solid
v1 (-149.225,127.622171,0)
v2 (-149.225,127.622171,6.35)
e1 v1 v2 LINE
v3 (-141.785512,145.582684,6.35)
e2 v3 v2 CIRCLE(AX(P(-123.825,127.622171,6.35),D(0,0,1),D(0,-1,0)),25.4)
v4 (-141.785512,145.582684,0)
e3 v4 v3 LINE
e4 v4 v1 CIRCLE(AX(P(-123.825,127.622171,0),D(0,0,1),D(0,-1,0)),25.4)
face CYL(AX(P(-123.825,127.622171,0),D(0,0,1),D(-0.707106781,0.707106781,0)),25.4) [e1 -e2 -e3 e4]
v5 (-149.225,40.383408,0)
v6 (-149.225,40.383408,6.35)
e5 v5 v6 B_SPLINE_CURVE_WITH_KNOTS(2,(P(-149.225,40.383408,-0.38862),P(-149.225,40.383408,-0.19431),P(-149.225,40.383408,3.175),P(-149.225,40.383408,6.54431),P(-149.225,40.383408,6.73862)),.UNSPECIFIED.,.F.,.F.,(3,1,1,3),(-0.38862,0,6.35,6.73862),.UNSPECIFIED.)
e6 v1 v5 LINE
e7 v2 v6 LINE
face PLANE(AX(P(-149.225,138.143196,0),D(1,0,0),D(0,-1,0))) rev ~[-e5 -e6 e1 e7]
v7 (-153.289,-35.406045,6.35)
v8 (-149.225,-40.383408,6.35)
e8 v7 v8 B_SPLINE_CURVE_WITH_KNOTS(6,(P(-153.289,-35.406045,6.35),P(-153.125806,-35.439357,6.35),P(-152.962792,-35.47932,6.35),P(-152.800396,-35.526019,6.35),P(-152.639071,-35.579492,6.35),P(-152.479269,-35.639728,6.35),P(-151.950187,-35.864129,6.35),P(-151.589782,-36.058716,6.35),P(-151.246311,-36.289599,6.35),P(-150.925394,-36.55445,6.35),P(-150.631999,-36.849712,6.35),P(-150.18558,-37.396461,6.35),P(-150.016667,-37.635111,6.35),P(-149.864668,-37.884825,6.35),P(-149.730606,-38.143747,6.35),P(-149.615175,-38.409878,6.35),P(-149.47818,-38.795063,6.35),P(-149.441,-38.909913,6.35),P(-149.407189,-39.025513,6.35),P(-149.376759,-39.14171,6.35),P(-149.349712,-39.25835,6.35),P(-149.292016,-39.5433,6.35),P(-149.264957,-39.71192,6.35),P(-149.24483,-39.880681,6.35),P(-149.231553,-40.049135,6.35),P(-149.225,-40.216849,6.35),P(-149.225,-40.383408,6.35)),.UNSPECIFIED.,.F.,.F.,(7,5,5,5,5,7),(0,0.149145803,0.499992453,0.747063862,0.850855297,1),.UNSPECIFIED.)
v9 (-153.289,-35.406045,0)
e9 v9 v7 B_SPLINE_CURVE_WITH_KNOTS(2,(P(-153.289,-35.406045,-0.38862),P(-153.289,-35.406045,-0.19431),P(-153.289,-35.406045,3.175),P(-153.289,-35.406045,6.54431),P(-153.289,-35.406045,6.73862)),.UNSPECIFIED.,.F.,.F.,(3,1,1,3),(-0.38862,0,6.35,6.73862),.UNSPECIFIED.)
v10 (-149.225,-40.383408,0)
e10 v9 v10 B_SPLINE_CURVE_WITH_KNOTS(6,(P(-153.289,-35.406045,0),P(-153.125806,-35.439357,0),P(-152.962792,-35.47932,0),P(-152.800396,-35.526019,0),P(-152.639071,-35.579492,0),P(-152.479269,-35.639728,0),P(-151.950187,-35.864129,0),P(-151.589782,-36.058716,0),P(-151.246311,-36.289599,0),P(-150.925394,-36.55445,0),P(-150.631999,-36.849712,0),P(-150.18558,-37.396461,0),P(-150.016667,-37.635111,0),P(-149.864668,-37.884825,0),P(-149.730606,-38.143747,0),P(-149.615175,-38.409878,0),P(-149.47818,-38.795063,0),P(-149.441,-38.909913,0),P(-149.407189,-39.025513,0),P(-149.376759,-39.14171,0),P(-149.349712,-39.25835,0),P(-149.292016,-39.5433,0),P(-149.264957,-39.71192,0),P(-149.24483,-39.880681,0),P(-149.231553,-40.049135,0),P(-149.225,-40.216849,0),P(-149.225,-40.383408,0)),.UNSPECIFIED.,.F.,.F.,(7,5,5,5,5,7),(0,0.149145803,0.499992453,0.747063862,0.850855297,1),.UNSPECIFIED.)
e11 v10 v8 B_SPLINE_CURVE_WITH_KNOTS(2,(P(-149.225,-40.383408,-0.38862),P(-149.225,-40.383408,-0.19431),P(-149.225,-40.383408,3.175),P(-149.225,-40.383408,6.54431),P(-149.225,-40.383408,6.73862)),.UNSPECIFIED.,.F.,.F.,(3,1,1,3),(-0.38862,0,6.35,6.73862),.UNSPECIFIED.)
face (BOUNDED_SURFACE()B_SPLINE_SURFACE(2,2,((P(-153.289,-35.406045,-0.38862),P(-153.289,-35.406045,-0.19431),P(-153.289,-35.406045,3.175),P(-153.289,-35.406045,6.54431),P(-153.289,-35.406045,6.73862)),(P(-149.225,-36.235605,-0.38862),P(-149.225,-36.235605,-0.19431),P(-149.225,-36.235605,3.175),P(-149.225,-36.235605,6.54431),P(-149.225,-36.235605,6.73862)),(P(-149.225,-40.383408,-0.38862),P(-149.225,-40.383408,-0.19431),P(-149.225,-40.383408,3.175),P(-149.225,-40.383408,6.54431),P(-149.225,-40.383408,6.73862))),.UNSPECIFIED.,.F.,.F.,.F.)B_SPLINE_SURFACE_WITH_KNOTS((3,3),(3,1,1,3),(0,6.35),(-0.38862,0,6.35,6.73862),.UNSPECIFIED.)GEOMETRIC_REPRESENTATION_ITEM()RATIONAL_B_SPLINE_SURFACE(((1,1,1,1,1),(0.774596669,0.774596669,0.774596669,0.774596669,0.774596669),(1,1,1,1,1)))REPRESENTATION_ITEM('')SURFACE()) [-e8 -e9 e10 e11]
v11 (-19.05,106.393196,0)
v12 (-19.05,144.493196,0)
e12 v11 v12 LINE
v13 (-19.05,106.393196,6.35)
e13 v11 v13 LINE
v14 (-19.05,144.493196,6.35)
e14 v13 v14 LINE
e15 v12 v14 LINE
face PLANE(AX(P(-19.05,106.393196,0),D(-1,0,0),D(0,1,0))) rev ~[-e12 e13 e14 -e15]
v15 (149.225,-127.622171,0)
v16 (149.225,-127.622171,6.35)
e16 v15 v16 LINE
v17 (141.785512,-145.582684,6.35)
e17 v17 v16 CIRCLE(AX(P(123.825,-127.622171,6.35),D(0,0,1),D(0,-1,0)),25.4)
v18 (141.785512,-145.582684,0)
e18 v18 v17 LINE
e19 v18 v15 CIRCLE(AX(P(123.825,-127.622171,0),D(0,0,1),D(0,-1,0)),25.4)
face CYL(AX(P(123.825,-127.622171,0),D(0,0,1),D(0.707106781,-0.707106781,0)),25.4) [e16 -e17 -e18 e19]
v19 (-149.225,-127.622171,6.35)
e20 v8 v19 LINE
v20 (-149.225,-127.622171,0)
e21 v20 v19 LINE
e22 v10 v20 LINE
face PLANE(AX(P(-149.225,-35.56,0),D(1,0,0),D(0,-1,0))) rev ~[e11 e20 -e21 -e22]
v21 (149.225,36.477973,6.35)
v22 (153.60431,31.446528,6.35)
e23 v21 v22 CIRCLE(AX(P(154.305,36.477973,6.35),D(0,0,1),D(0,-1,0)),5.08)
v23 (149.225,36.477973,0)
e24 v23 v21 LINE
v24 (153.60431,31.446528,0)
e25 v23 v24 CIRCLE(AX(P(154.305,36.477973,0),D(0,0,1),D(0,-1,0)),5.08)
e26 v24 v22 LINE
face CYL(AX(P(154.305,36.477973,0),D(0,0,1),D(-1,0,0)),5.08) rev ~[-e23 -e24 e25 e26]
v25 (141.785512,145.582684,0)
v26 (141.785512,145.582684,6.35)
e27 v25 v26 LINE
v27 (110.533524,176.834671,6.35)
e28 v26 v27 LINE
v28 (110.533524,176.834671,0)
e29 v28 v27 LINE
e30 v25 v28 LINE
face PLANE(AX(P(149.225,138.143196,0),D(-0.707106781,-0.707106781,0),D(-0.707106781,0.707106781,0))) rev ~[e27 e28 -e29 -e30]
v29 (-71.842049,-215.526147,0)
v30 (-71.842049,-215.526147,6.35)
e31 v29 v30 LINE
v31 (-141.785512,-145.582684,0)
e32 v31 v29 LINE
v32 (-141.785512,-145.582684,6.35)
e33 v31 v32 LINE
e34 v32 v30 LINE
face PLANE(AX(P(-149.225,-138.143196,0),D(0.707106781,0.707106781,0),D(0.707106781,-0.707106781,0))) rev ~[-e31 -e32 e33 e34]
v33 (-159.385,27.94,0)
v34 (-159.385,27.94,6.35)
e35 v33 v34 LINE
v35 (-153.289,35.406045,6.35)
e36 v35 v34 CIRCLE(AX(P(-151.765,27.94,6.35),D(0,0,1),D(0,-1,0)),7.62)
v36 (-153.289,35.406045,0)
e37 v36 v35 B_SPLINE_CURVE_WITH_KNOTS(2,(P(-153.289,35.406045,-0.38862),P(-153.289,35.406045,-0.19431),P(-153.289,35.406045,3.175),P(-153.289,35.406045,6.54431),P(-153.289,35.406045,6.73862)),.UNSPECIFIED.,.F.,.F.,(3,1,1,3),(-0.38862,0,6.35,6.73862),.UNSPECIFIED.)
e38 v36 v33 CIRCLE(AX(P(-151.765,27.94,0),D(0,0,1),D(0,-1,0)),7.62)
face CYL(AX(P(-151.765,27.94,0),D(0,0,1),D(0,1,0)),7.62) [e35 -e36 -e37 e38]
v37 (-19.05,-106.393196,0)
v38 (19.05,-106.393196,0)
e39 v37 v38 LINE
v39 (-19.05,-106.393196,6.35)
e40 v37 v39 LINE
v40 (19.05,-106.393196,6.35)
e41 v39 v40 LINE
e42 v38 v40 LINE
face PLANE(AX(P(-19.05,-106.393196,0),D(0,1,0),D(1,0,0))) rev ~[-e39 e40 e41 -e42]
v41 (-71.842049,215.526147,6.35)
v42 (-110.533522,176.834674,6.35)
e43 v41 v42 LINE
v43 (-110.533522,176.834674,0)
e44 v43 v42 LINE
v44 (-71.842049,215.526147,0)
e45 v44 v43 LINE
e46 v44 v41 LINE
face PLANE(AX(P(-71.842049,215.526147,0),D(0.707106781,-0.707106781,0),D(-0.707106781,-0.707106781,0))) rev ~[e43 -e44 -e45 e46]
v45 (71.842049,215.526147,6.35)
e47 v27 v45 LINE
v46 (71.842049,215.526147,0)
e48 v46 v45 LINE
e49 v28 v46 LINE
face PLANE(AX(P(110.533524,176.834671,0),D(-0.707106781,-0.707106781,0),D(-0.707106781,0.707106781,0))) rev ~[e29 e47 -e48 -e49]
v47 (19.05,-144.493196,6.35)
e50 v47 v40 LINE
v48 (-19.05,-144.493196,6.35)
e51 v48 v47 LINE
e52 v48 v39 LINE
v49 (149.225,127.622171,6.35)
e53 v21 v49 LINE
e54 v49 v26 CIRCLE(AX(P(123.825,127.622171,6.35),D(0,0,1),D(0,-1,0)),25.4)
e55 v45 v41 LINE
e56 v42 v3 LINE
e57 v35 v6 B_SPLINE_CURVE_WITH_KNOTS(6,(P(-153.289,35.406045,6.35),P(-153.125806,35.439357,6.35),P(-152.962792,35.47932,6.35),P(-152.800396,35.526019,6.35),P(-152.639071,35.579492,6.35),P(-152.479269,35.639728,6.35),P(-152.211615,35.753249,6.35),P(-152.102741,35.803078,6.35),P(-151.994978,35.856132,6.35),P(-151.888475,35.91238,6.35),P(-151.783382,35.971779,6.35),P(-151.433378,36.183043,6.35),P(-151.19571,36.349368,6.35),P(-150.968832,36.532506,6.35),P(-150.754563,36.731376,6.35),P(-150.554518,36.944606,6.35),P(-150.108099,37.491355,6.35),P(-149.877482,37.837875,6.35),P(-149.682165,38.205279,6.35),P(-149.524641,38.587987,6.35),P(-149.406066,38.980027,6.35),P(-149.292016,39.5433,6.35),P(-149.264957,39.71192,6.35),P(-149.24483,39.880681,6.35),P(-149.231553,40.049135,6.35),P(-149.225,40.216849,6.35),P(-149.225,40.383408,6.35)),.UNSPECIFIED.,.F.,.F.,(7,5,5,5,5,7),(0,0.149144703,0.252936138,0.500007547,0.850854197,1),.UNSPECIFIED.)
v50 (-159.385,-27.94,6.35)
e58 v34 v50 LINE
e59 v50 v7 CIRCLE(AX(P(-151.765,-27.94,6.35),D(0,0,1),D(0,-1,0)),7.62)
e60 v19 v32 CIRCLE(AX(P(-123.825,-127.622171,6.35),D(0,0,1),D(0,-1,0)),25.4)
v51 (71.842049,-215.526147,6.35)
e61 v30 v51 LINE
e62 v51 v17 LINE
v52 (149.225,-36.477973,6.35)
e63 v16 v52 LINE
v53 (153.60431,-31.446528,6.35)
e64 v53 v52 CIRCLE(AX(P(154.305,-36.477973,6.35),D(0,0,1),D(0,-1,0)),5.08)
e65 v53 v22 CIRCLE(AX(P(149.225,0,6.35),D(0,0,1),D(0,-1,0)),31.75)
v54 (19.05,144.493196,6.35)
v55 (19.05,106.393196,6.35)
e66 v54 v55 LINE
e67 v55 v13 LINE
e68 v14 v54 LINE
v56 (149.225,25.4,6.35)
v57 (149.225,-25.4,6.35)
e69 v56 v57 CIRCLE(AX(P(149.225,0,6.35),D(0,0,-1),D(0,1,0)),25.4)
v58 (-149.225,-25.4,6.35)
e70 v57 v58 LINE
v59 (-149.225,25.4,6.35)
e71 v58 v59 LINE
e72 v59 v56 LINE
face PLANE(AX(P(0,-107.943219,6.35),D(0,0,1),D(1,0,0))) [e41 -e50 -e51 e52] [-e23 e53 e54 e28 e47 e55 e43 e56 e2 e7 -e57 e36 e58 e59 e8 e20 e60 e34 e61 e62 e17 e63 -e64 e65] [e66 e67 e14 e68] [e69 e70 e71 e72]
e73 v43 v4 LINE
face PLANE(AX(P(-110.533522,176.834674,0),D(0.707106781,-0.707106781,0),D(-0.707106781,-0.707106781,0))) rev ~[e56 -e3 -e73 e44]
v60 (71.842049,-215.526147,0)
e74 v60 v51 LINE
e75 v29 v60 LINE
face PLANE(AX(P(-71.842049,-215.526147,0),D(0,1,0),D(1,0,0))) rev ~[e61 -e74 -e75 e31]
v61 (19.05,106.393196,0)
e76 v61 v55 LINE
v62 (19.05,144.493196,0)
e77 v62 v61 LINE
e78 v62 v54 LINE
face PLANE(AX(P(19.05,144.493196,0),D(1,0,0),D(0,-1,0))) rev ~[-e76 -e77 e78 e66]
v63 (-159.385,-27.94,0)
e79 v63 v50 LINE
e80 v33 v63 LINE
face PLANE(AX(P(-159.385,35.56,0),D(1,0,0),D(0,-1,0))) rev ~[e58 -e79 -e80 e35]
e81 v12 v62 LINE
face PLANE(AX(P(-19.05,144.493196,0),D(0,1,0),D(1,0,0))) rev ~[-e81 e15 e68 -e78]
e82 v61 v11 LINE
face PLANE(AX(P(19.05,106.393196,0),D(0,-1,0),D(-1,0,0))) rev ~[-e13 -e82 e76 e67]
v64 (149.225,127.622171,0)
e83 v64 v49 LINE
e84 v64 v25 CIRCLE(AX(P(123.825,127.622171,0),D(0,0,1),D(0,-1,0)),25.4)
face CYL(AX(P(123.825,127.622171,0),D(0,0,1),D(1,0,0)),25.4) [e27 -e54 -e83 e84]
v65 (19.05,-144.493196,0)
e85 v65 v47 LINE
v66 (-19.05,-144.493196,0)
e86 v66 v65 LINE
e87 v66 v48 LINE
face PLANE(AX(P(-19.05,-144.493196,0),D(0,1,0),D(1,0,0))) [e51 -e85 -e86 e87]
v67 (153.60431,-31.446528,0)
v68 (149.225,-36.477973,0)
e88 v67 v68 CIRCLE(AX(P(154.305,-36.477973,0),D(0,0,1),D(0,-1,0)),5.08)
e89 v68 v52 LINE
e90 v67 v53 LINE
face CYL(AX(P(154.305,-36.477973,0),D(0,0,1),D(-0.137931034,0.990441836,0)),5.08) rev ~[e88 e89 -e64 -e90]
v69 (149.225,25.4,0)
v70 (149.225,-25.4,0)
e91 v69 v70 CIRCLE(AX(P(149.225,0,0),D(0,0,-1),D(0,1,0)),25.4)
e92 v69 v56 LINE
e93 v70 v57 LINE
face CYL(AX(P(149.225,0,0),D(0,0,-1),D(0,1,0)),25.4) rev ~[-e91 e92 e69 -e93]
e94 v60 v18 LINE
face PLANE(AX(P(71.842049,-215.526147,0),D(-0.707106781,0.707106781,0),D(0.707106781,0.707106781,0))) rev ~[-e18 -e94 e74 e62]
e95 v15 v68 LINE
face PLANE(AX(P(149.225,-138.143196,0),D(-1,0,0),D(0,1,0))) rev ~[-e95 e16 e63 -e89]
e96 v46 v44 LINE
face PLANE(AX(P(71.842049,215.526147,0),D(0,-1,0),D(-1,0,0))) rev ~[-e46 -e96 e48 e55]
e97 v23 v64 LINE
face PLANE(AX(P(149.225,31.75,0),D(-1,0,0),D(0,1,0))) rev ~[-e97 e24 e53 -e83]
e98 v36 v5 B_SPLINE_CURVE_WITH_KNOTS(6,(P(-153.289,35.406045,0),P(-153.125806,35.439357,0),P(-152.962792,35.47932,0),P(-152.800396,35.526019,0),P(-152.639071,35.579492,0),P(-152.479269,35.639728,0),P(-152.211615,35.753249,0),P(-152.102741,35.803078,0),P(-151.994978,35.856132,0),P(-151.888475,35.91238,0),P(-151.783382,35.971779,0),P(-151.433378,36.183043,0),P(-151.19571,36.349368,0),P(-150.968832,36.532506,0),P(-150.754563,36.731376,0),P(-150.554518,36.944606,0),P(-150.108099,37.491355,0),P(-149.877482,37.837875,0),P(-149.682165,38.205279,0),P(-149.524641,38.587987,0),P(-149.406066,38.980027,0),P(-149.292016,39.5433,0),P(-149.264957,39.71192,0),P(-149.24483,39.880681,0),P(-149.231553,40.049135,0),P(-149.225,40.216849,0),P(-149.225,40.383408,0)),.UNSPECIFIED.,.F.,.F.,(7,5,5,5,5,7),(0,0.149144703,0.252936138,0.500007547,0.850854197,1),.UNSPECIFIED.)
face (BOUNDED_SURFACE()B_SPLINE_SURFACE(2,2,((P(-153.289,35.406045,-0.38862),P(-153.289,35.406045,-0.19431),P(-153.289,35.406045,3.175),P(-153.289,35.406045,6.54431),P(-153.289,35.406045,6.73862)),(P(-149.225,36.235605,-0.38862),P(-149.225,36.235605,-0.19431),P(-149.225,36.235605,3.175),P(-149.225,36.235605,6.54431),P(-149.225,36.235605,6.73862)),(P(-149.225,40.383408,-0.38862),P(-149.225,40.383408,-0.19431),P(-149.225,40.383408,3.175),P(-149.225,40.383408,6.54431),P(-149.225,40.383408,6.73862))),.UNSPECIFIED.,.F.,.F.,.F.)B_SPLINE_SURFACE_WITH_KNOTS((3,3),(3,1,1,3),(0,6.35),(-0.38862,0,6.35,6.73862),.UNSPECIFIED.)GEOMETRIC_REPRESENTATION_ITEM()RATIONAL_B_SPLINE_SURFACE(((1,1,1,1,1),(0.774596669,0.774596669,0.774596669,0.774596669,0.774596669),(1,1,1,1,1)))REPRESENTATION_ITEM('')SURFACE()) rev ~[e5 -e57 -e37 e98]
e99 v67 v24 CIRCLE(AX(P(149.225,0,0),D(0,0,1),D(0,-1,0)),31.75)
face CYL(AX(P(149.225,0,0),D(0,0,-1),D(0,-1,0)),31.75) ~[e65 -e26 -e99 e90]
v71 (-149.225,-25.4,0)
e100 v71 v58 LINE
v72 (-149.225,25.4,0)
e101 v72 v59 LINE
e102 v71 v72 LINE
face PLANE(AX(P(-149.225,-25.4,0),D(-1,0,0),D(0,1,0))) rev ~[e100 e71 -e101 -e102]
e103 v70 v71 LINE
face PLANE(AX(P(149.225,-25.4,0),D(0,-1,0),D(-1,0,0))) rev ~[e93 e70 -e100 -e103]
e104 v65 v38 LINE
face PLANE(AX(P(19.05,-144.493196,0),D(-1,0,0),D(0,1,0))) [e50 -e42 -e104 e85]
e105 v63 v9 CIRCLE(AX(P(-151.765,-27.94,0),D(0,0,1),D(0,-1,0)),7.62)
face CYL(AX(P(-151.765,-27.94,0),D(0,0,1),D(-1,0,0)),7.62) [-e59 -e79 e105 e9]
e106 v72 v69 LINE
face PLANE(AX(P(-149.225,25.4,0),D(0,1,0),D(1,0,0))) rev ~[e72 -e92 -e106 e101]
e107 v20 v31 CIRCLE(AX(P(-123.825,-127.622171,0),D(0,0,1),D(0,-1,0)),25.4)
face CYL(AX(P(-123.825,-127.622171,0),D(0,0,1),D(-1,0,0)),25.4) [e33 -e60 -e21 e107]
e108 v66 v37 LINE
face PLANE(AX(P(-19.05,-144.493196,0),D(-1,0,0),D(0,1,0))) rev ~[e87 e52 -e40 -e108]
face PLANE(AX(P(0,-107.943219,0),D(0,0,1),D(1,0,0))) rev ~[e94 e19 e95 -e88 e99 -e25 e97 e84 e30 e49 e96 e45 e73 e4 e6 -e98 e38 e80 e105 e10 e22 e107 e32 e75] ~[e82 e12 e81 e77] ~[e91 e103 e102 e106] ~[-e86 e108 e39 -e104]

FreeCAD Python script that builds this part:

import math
import FreeCAD as App
import Part
import Sketcher
from FreeCAD import Vector
Q = App.Units.Quantity


def edges_at(feature, points):
    """Names of the edges that pass closest to the given points."""
    edges = feature.Shape.Edges
    near = lambda p: min(range(len(edges)), key=lambda i: edges[i].distToShape(Part.Vertex(*p))[0])
    return sorted({f"Edge{near(p) + 1}" for p in points})


def add_polygon(sketch, points):
    """Adds a closed chain of lines whose ends are joined by coincident constraints."""
    first, n = sketch.GeometryCount, len(points)
    for a, b in zip(points, points[1:] + points[:1]):
        sketch.addGeometry(Part.LineSegment(App.Vector(*a, 0), App.Vector(*b, 0)), False)
    for i in range(n):
        sketch.addConstraint(Sketcher.Constraint("Coincident", first + i, 2, first + (i + 1) % n, 1))

doc = App.newDocument("Part")
body = doc.addObject("PartDesign::Body", "Body")

sketch1 = body.newObject("Sketcher::SketchObject", "Sketch")
sketch1.AttachmentSupport = (doc.getObject("XY_Plane"), [""])
sketch1.MapMode = "FlatFace"
sketch1.addGeometry(Part.LineSegment(Vector(149.225, 31.75, 0), Vector(149.225, 138.143196, 0)), False)
sketch1.addGeometry(Part.LineSegment(Vector(149.225, 138.143196, 0), Vector(110.533524, 176.834671, 0)), False)
sketch1.addGeometry(Part.LineSegment(Vector(110.533524, 176.834671, 0), Vector(71.842049, 215.526147, 0)), False)
sketch1.addGeometry(Part.LineSegment(Vector(71.842049, 215.526147, 0), Vector(-71.842049, 215.526147, 0)), False)
sketch1.addGeometry(Part.LineSegment(Vector(-71.842049, 215.526147, 0), Vector(-110.533522, 176.834674, 0)), False)
sketch1.addGeometry(Part.LineSegment(Vector(-110.533522, 176.834674, 0), Vector(-149.225, 138.143196, 0)), False)
sketch1.addGeometry(Part.LineSegment(Vector(-149.225, 138.143196, 0), Vector(-149.225, 35.56, 0)), False)
sketch1.addGeometry(Part.LineSegment(Vector(-149.225, 35.56, 0), Vector(-159.385, 35.56, 0)), False)
sketch1.addGeometry(Part.LineSegment(Vector(-159.385, 35.56, 0), Vector(-159.385, -35.56, 0)), False)
sketch1.addGeometry(Part.LineSegment(Vector(-159.385, -35.56, 0), Vector(-149.225, -35.56, 0)), False)
sketch1.addGeometry(Part.LineSegment(Vector(-149.225, -35.56, 0), Vector(-149.225, -138.143196, 0)), False)
sketch1.addGeometry(Part.LineSegment(Vector(-149.225, -138.143196, 0), Vector(-71.842049, -215.526147, 0)), False)
sketch1.addGeometry(Part.LineSegment(Vector(-71.842049, -215.526147, 0), Vector(71.842049, -215.526147, 0)), False)
sketch1.addGeometry(Part.LineSegment(Vector(71.842049, -215.526147, 0), Vector(149.225, -138.143196, 0)), False)
sketch1.addGeometry(Part.LineSegment(Vector(149.225, -138.143196, 0), Vector(149.225, -31.75, 0)), False)
sketch1.addGeometry(Part.ArcOfCircle(Part.Circle(Vector(149.225, 0, 0), Vector(0, 0, 1), 31.75), math.radians(-90), math.radians(90)), False)
sketch1.addGeometry(Part.LineSegment(Vector(149.225, -25.4, 0), Vector(-149.225, -25.4, 0)), False)
sketch1.addGeometry(Part.LineSegment(Vector(-149.225, -25.4, 0), Vector(-149.225, 25.4, 0)), False)
sketch1.addGeometry(Part.LineSegment(Vector(-149.225, 25.4, 0), Vector(149.225, 25.4, 0)), False)
sketch1.addGeometry(Part.ArcOfCircle(Part.Circle(Vector(149.225, 0, 0), Vector(0, 0, 1), 25.4), math.radians(-90), math.radians(90)), False)
add_polygon(sketch1, [(19.05, -144.493196), (-19.05, -144.493196), (-19.05, -106.393196), (19.05, -106.393196)])
add_polygon(sketch1, [(19.05, 106.393196), (-19.05, 106.393196), (-19.05, 144.493196), (19.05, 144.493196)])
sketch1.addConstraint(Sketcher.Constraint("Coincident", 0, 2, 1, 1))
sketch1.addConstraint(Sketcher.Constraint("Coincident", 1, 2, 2, 1))
sketch1.addConstraint(Sketcher.Constraint("Coincident", 2, 2, 3, 1))
sketch1.addConstraint(Sketcher.Constraint("Coincident", 3, 2, 4, 1))
sketch1.addConstraint(Sketcher.Constraint("Coincident", 4, 2, 5, 1))
sketch1.addConstraint(Sketcher.Constraint("Coincident", 5, 2, 6, 1))
sketch1.addConstraint(Sketcher.Constraint("Coincident", 6, 2, 7, 1))
sketch1.addConstraint(Sketcher.Constraint("Coincident", 7, 2, 8, 1))
sketch1.addConstraint(Sketcher.Constraint("Coincident", 8, 2, 9, 1))
sketch1.addConstraint(Sketcher.Constraint("Coincident", 9, 2, 10, 1))
sketch1.addConstraint(Sketcher.Constraint("Coincident", 10, 2, 11, 1))
sketch1.addConstraint(Sketcher.Constraint("Coincident", 11, 2, 12, 1))
sketch1.addConstraint(Sketcher.Constraint("Coincident", 12, 2, 13, 1))
sketch1.addConstraint(Sketcher.Constraint("Coincident", 13, 2, 14, 1))
sketch1.addConstraint(Sketcher.Constraint("Coincident", 14, 2, 15, 1))
sketch1.addConstraint(Sketcher.Constraint("Coincident", 15, 2, 0, 1))
sketch1.addConstraint(Sketcher.Constraint("Coincident", 16, 2, 17, 1))
sketch1.addConstraint(Sketcher.Constraint("Coincident", 17, 2, 18, 1))
sketch1.addConstraint(Sketcher.Constraint("Tangent", 18, 2, 19, 2))
sketch1.addConstraint(Sketcher.Constraint("Tangent", 19, 1, 16, 1))
sketch1.addConstraint(Sketcher.Constraint("Vertical", 0))
sketch1.addConstraint(Sketcher.Constraint("Horizontal", 3))
sketch1.addConstraint(Sketcher.Constraint("Vertical", 6))
sketch1.addConstraint(Sketcher.Constraint("Horizontal", 7))
sketch1.addConstraint(Sketcher.Constraint("Vertical", 8))
sketch1.addConstraint(Sketcher.Constraint("Horizontal", 9))
sketch1.addConstraint(Sketcher.Constraint("Vertical", 10))
sketch1.addConstraint(Sketcher.Constraint("Horizontal", 12))
sketch1.addConstraint(Sketcher.Constraint("Vertical", 14))
sketch1.addConstraint(Sketcher.Constraint("Horizontal", 16))
sketch1.addConstraint(Sketcher.Constraint("Vertical", 17))
sketch1.addConstraint(Sketcher.Constraint("Horizontal", 18))
sketch1.addConstraint(Sketcher.Constraint("Horizontal", 20))
sketch1.addConstraint(Sketcher.Constraint("Vertical", 21))
sketch1.addConstraint(Sketcher.Constraint("Horizontal", 22))
sketch1.addConstraint(Sketcher.Constraint("Vertical", 23))
sketch1.addConstraint(Sketcher.Constraint("Horizontal", 24))
sketch1.addConstraint(Sketcher.Constraint("Vertical", 25))
sketch1.addConstraint(Sketcher.Constraint("Horizontal", 26))
sketch1.addConstraint(Sketcher.Constraint("Vertical", 27))
sketch1.addConstraint(Sketcher.Constraint("Coincident", 19, 3, 15, 3))
sketch1.addConstraint(Sketcher.Constraint("Symmetric", 0, 2, 10, 2, -1, 1))
sketch1.addConstraint(Sketcher.Constraint("Symmetric", 2, 2, 11, 2, -1, 1))
sketch1.addConstraint(Sketcher.Constraint("Symmetric", 5, 2, 13, 2, -1, 1))
sketch1.addConstraint(Sketcher.Constraint("Symmetric", 16, 2, 18, 2, -1, 1))
sketch1.addConstraint(Sketcher.Constraint("Symmetric", 22, 2, 24, 2, -1, 1))
sketch1.addConstraint(Sketcher.Constraint("Symmetric", 20, 2, 26, 2, -1, 1))
sketch1.addConstraint(Sketcher.Constraint("Symmetric", 1, 2, 4, 2, -2))
sketch1.addConstraint(Sketcher.Constraint("Symmetric", 0, 2, 5, 2, -2))
sketch1.addConstraint(Sketcher.Constraint("Parallel", 1, 2))
sketch1.addConstraint(Sketcher.Constraint("Perpendicular", 2, 4))
sketch1.addConstraint(Sketcher.Constraint("Parallel", 4, 5))
sketch1.addConstraint(Sketcher.Constraint("Perpendicular", 11, 13))
sketch1.addConstraint(Sketcher.Constraint("Vertical", 19, 3, 0, 2))
sketch1.addConstraint(Sketcher.Constraint("Vertical", 21, 2, 24, 2))
sketch1.addConstraint(Sketcher.Constraint("Equal", 6, 10))
sketch1.addConstraint(Sketcher.Constraint("Equal", 26, 21))
sketch1.addConstraint(Sketcher.Constraint("Equal", 1, 2))
sketch1.addConstraint(Sketcher.Constraint("Radius", 19, Q("1 in")))
sketch1.addConstraint(Sketcher.Constraint("Radius", 15, Q("1.25 in")))
sketch1.addConstraint(Sketcher.Constraint("DistanceX", 7, 2, 7, 1, Q("0.4 in")))
sketch1.addConstraint(Sketcher.Constraint("DistanceX", 20, 2, 20, 1, Q("1.5 in")))
sketch1.addConstraint(Sketcher.Constraint("DistanceY", 8, 2, 8, 1, Q("2.8 in")))
sketch1.addConstraint(Sketcher.Constraint("DistanceX", 16, 2, 16, 1, Q("11.75 in")))
sketch1.addConstraint(Sketcher.Constraint("DistanceY", 20, 2, 10, 2, Q("0.25 in")))
sketch1.addConstraint(Sketcher.Constraint("Distance", 1, 54.718009))
sketch1.addConstraint(Sketcher.Constraint("DistanceY", 0, 1, 0, 2, 106.393196))
pad1 = body.newObject("PartDesign::Pad", "Pad")
pad1.Profile = sketch1
pad1.Length = Q("0.25 in")
doc.recompute()

fillet = body.newObject("PartDesign::Fillet", "Fillet")
fillet.Base = (pad1, edges_at(pad1, [
    (149.225, -138.143, 3.175),
    (-149.225, -138.143, 3.175),
    (149.225, 138.143, 3.175),
    (-149.225, 138.143, 3.175),
]))
fillet.Radius = Q("1 in")
doc.recompute()

fillet2 = body.newObject("PartDesign::Fillet", "Fillet001")
fillet2.Base = (fillet, edges_at(fillet, [(149.225, -31.75, 3.175), (149.225, 31.75, 3.175)]))
fillet2.Radius = Q("0.2 in")
doc.recompute()

fillet3 = body.newObject("PartDesign::Fillet", "Fillet002")
fillet3.Base = (fillet2, edges_at(fillet2, [(-159.385, -35.56, 3.175), (-159.385, 35.56, 3.175)]))
fillet3.Radius = Q("0.3 in")
doc.recompute()

fillet4 = body.newObject("PartDesign::Fillet", "Fillet003")
fillet4.Base = (fillet3, edges_at(fillet3, [(-149.225, -35.56, 3.175), (-149.225, 35.56, 3.175)]))
fillet4.Radius = Q("0.2 in")

doc.recompute()
